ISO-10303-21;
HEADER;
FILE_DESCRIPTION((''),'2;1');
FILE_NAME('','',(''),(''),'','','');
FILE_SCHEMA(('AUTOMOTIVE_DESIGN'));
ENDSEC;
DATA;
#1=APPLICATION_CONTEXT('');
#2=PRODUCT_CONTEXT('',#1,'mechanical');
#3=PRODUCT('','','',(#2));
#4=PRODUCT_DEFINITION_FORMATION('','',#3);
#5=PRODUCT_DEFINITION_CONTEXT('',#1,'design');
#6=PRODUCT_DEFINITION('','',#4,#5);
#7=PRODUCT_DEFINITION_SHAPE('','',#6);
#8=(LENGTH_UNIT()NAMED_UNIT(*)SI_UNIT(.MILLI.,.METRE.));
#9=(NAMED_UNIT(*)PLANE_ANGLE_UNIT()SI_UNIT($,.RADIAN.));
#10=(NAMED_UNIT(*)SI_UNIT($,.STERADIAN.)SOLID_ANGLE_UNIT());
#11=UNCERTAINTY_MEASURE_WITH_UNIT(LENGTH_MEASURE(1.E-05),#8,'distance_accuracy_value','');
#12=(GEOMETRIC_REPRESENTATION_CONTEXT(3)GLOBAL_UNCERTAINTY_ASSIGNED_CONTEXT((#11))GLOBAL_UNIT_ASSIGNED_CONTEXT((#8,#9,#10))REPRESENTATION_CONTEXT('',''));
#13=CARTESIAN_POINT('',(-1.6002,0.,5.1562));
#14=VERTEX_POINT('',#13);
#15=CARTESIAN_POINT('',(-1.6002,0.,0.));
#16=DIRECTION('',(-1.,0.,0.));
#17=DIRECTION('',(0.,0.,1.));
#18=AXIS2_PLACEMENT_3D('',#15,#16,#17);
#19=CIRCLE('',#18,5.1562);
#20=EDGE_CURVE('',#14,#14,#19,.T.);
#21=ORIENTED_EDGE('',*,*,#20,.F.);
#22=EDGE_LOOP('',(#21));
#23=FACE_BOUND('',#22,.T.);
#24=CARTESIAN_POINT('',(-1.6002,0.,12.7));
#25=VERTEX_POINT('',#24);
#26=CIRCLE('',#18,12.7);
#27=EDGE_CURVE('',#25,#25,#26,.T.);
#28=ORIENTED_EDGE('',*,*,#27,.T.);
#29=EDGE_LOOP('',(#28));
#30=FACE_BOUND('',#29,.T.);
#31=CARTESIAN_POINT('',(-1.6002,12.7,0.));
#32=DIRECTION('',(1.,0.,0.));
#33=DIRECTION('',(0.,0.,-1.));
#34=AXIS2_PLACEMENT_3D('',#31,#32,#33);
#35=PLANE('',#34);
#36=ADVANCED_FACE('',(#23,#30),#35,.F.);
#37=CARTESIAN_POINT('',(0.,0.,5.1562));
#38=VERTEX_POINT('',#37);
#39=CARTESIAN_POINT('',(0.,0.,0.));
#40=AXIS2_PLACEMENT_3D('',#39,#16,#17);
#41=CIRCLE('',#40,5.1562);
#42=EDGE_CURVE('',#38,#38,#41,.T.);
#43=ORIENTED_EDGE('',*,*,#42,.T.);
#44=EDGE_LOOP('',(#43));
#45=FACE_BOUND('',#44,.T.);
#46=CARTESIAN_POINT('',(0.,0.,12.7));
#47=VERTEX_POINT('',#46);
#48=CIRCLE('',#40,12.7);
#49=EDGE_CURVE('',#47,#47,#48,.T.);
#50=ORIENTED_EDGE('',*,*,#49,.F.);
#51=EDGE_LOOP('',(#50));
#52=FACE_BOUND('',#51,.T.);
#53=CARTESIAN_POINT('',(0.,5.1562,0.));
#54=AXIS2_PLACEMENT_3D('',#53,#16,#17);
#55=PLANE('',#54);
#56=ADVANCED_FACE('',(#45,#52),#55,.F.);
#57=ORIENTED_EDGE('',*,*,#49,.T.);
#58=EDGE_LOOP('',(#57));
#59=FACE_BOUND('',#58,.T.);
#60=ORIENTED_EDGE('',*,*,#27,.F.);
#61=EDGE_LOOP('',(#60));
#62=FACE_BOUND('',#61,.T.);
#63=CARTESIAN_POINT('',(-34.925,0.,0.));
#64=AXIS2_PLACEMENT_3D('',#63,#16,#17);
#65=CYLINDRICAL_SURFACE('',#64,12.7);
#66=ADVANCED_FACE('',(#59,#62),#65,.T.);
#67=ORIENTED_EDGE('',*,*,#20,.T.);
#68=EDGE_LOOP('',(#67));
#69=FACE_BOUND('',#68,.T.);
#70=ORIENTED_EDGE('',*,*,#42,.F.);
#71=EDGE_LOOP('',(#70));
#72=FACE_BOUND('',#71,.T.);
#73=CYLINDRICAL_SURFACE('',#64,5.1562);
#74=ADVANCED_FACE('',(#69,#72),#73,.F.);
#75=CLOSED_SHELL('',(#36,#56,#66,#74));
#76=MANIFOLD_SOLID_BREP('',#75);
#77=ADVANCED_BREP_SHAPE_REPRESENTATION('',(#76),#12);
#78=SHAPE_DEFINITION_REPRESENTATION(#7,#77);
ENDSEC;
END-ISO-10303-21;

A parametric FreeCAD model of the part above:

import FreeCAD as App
import Part
import Sketcher
Q = App.Units.Quantity

doc = App.newDocument("Part")
body = doc.addObject("PartDesign::Body", "Body")

sketch1 = body.newObject("Sketcher::SketchObject", "Sketch")
sketch1.AttachmentSupport = (doc.getObject("XY_Plane"), [""])
sketch1.MapMode = "FlatFace"
sketch1.addGeometry([
    Part.LineSegment(App.Vector(-1.6, 12.7, 0), App.Vector(-1.6, 5.2, 0)),
    Part.LineSegment(App.Vector(-1.6, 5.2, 0), App.Vector(0, 5.2, 0)),
    Part.LineSegment(App.Vector(0, 5.2, 0), App.Vector(0, 12.7, 0)),
    Part.LineSegment(App.Vector(0, 12.7, 0), App.Vector(-1.6, 12.7, 0)),
], False)
sketch1.addConstraint([
    Sketcher.Constraint("Coincident", 0, 2, 1, 1),
    Sketcher.Constraint("Coincident", 1, 2, 2, 1),
    Sketcher.Constraint("Coincident", 2, 2, 3, 1),
    Sketcher.Constraint("Coincident", 3, 2, 0, 1),
    Sketcher.Constraint("Vertical", 0),
    Sketcher.Constraint("Horizontal", 1),
    Sketcher.Constraint("Vertical", 2),
    Sketcher.Constraint("Horizontal", 3),
    Sketcher.Constraint("PointOnObject", 1, 2, -2),
    Sketcher.Constraint("DistanceY", -1, 1, 2, 2, Q("0.5 in")),
    Sketcher.Constraint("DistanceX", 1, 1, 1, 2, Q("0.063 in")),
    Sketcher.Constraint("DistanceY", 0, 2, 0, 1, Q("0.297 in")),
])
revolution = body.newObject("PartDesign::Revolution", "Revolution")
revolution.Profile = sketch1
revolution.ReferenceAxis = (sketch1, ["H_Axis"])
revolution.Angle = 360

doc.recompute()
